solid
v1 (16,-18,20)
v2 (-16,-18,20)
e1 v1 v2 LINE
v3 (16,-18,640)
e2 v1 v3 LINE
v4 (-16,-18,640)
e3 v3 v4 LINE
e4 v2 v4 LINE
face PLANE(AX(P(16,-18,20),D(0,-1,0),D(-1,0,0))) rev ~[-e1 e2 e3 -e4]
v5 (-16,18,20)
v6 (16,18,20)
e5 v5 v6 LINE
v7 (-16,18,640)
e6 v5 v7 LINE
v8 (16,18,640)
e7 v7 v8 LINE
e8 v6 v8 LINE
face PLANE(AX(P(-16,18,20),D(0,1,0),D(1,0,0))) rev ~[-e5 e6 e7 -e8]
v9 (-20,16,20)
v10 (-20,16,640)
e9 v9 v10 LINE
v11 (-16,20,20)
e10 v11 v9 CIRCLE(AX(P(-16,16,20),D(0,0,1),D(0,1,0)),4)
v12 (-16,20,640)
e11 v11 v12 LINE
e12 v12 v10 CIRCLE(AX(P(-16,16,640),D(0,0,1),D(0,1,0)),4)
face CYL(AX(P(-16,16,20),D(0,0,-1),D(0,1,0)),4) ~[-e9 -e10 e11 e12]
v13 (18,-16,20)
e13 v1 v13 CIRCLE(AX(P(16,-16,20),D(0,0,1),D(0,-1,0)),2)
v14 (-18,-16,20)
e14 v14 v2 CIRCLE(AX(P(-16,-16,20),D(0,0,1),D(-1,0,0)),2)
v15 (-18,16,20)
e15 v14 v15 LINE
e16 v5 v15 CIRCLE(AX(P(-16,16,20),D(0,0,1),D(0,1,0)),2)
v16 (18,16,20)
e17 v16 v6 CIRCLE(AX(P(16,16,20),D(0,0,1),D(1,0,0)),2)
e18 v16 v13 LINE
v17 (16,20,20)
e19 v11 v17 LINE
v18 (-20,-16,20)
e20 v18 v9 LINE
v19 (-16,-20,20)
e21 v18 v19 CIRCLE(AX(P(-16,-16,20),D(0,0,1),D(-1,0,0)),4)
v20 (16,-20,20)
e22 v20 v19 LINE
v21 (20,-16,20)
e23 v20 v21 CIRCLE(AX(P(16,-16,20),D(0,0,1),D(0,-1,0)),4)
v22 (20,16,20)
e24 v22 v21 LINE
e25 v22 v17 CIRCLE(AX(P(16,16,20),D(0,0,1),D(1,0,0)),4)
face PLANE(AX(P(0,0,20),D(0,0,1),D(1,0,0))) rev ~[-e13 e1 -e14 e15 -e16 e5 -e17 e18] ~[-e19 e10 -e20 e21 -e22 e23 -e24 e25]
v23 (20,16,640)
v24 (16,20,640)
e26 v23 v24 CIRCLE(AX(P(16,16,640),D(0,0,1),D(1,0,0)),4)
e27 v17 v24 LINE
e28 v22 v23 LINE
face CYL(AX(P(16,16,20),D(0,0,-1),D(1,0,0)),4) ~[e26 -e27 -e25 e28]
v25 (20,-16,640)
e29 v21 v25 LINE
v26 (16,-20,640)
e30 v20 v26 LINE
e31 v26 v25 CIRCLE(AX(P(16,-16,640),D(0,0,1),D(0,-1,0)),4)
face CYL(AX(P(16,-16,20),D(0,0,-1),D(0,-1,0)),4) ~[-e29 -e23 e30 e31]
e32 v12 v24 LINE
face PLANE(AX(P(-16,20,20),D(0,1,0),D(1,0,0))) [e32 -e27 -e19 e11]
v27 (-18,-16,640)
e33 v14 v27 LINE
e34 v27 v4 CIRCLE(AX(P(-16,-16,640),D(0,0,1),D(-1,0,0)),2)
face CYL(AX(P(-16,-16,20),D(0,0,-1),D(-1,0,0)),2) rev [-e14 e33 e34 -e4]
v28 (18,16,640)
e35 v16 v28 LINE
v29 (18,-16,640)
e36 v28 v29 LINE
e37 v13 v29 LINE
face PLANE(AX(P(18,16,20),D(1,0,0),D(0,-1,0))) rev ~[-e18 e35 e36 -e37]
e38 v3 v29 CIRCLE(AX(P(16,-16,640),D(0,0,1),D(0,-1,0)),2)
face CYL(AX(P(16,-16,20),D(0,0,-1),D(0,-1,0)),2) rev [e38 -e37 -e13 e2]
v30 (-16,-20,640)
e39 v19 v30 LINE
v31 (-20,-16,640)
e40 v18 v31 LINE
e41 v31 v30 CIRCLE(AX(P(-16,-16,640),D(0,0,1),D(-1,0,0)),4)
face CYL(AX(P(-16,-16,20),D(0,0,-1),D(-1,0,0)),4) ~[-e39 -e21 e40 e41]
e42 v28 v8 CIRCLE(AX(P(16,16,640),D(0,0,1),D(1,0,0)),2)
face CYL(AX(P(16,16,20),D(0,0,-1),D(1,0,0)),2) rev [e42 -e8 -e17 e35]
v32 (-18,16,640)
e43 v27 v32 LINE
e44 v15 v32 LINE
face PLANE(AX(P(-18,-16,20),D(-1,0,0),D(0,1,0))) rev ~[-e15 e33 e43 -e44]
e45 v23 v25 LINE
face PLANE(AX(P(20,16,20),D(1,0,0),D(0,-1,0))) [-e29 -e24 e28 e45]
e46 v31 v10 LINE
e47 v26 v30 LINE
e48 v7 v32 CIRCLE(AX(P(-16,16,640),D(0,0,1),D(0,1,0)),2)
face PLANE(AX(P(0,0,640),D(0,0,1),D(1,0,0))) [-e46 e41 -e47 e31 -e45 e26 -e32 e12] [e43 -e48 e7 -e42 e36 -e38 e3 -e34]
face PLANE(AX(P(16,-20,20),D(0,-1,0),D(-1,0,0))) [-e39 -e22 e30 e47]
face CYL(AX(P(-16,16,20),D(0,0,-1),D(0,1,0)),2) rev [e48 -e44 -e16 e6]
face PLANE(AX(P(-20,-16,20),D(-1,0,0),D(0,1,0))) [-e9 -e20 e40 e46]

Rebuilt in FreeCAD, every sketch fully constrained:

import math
import FreeCAD as App
import Part
import Sketcher
from FreeCAD import Vector
Q = App.Units.Quantity

doc = App.newDocument("Part")
body = doc.addObject("PartDesign::Body", "Body")

# Sketch on XY plane
sketch1 = body.newObject("Sketcher::SketchObject", "Sketch")
sketch1.AttachmentSupport = (doc.getObject("XY_Plane"), [""])
sketch1.MapMode = "FlatFace"
sketch1.AttachmentOffset = App.Placement(Vector(0, 0, 20), App.Rotation())
sketch1.addGeometry([
    Part.LineSegment(Vector(-20, 16, 0), Vector(-20, -16, 0)),  # 0
    Part.ArcOfCircle(Part.Circle(Vector(-16, -16, 0), Vector(0, 0, 1), 4), math.radians(180), math.radians(270)),  # 1
    Part.LineSegment(Vector(-16, -20, 0), Vector(16, -20, 0)),  # 2
    Part.ArcOfCircle(Part.Circle(Vector(16, -16, 0), Vector(0, 0, 1), 4), math.radians(-90), math.radians(0)),  # 3
    Part.LineSegment(Vector(20, -16, 0), Vector(20, 16, 0)),  # 4
    Part.ArcOfCircle(Part.Circle(Vector(16, 16, 0), Vector(0, 0, 1), 4), math.radians(0), math.radians(90)),  # 5
    Part.LineSegment(Vector(16, 20, 0), Vector(-16, 20, 0)),  # 6
    Part.ArcOfCircle(Part.Circle(Vector(-16, 16, 0), Vector(0, 0, 1), 4), math.radians(90), math.radians(180)),  # 7
    Part.ArcOfCircle(Part.Circle(Vector(-16, 16, 0), Vector(0, 0, 1), 2), math.radians(90), math.radians(180)),  # 8
    Part.LineSegment(Vector(-16, 18, 0), Vector(16, 18, 0)),  # 9
    Part.ArcOfCircle(Part.Circle(Vector(16, 16, 0), Vector(0, 0, 1), 2), math.radians(0), math.radians(90)),  # 10
    Part.LineSegment(Vector(18, 16, 0), Vector(18, -16, 0)),  # 11
    Part.ArcOfCircle(Part.Circle(Vector(16, -16, 0), Vector(0, 0, 1), 2), math.radians(-90), math.radians(0)),  # 12
    Part.LineSegment(Vector(16, -18, 0), Vector(-16, -18, 0)),  # 13
    Part.ArcOfCircle(Part.Circle(Vector(-16, -16, 0), Vector(0, 0, 1), 2), math.radians(180), math.radians(270)),  # 14
    Part.LineSegment(Vector(-18, -16, 0), Vector(-18, 16, 0)),  # 15
], False)
sketch1.addConstraint([
    Sketcher.Constraint("Tangent", 0, 2, 1, 1),
    Sketcher.Constraint("Tangent", 1, 2, 2, 1),
    Sketcher.Constraint("Tangent", 2, 2, 3, 1),
    Sketcher.Constraint("Tangent", 3, 2, 4, 1),
    Sketcher.Constraint("Tangent", 4, 2, 5, 1),
    Sketcher.Constraint("Tangent", 5, 2, 6, 1),
    Sketcher.Constraint("Tangent", 6, 2, 7, 1),
    Sketcher.Constraint("Tangent", 7, 2, 0, 1),
    Sketcher.Constraint("Tangent", 8, 1, 9, 1),
    Sketcher.Constraint("Tangent", 9, 2, 10, 2),
    Sketcher.Constraint("Tangent", 10, 1, 11, 1),
    Sketcher.Constraint("Tangent", 11, 2, 12, 2),
    Sketcher.Constraint("Tangent", 12, 1, 13, 1),
    Sketcher.Constraint("Tangent", 13, 2, 14, 2),
    Sketcher.Constraint("Tangent", 14, 1, 15, 1),
    Sketcher.Constraint("Tangent", 15, 2, 8, 2),
    Sketcher.Constraint("Vertical", 0),
    Sketcher.Constraint("Horizontal", 2),
    Sketcher.Constraint("Vertical", 4),
    Sketcher.Constraint("Horizontal", 6),
    Sketcher.Constraint("Horizontal", 9),
    Sketcher.Constraint("Vertical", 11),
    Sketcher.Constraint("Horizontal", 13),
    Sketcher.Constraint("Vertical", 15),
    Sketcher.Constraint("Coincident", 8, 3, 7, 3),
    Sketcher.Constraint("Coincident", 10, 3, 5, 3),
    Sketcher.Constraint("Coincident", 12, 3, 3, 3),
    Sketcher.Constraint("Equal", 1, 3),
    Sketcher.Constraint("Equal", 3, 5),
    Sketcher.Constraint("Equal", 5, 7),
    Sketcher.Constraint("Equal", 12, 14),
    Sketcher.Constraint("Symmetric", 1, 3, 5, 3, -1, 1),
    Sketcher.Constraint("Equal", 13, 0),
    Sketcher.Constraint("Radius", 1, Q("4 mm")),
    Sketcher.Constraint("Radius", 8, Q("2 mm")),
    Sketcher.Constraint("DistanceX", 0, 2, -1, 1, Q("20 mm")),
])
pad1 = body.newObject("PartDesign::Pad", "Pad")
pad1.Profile = sketch1
pad1.Length = 620

doc.recompute()
